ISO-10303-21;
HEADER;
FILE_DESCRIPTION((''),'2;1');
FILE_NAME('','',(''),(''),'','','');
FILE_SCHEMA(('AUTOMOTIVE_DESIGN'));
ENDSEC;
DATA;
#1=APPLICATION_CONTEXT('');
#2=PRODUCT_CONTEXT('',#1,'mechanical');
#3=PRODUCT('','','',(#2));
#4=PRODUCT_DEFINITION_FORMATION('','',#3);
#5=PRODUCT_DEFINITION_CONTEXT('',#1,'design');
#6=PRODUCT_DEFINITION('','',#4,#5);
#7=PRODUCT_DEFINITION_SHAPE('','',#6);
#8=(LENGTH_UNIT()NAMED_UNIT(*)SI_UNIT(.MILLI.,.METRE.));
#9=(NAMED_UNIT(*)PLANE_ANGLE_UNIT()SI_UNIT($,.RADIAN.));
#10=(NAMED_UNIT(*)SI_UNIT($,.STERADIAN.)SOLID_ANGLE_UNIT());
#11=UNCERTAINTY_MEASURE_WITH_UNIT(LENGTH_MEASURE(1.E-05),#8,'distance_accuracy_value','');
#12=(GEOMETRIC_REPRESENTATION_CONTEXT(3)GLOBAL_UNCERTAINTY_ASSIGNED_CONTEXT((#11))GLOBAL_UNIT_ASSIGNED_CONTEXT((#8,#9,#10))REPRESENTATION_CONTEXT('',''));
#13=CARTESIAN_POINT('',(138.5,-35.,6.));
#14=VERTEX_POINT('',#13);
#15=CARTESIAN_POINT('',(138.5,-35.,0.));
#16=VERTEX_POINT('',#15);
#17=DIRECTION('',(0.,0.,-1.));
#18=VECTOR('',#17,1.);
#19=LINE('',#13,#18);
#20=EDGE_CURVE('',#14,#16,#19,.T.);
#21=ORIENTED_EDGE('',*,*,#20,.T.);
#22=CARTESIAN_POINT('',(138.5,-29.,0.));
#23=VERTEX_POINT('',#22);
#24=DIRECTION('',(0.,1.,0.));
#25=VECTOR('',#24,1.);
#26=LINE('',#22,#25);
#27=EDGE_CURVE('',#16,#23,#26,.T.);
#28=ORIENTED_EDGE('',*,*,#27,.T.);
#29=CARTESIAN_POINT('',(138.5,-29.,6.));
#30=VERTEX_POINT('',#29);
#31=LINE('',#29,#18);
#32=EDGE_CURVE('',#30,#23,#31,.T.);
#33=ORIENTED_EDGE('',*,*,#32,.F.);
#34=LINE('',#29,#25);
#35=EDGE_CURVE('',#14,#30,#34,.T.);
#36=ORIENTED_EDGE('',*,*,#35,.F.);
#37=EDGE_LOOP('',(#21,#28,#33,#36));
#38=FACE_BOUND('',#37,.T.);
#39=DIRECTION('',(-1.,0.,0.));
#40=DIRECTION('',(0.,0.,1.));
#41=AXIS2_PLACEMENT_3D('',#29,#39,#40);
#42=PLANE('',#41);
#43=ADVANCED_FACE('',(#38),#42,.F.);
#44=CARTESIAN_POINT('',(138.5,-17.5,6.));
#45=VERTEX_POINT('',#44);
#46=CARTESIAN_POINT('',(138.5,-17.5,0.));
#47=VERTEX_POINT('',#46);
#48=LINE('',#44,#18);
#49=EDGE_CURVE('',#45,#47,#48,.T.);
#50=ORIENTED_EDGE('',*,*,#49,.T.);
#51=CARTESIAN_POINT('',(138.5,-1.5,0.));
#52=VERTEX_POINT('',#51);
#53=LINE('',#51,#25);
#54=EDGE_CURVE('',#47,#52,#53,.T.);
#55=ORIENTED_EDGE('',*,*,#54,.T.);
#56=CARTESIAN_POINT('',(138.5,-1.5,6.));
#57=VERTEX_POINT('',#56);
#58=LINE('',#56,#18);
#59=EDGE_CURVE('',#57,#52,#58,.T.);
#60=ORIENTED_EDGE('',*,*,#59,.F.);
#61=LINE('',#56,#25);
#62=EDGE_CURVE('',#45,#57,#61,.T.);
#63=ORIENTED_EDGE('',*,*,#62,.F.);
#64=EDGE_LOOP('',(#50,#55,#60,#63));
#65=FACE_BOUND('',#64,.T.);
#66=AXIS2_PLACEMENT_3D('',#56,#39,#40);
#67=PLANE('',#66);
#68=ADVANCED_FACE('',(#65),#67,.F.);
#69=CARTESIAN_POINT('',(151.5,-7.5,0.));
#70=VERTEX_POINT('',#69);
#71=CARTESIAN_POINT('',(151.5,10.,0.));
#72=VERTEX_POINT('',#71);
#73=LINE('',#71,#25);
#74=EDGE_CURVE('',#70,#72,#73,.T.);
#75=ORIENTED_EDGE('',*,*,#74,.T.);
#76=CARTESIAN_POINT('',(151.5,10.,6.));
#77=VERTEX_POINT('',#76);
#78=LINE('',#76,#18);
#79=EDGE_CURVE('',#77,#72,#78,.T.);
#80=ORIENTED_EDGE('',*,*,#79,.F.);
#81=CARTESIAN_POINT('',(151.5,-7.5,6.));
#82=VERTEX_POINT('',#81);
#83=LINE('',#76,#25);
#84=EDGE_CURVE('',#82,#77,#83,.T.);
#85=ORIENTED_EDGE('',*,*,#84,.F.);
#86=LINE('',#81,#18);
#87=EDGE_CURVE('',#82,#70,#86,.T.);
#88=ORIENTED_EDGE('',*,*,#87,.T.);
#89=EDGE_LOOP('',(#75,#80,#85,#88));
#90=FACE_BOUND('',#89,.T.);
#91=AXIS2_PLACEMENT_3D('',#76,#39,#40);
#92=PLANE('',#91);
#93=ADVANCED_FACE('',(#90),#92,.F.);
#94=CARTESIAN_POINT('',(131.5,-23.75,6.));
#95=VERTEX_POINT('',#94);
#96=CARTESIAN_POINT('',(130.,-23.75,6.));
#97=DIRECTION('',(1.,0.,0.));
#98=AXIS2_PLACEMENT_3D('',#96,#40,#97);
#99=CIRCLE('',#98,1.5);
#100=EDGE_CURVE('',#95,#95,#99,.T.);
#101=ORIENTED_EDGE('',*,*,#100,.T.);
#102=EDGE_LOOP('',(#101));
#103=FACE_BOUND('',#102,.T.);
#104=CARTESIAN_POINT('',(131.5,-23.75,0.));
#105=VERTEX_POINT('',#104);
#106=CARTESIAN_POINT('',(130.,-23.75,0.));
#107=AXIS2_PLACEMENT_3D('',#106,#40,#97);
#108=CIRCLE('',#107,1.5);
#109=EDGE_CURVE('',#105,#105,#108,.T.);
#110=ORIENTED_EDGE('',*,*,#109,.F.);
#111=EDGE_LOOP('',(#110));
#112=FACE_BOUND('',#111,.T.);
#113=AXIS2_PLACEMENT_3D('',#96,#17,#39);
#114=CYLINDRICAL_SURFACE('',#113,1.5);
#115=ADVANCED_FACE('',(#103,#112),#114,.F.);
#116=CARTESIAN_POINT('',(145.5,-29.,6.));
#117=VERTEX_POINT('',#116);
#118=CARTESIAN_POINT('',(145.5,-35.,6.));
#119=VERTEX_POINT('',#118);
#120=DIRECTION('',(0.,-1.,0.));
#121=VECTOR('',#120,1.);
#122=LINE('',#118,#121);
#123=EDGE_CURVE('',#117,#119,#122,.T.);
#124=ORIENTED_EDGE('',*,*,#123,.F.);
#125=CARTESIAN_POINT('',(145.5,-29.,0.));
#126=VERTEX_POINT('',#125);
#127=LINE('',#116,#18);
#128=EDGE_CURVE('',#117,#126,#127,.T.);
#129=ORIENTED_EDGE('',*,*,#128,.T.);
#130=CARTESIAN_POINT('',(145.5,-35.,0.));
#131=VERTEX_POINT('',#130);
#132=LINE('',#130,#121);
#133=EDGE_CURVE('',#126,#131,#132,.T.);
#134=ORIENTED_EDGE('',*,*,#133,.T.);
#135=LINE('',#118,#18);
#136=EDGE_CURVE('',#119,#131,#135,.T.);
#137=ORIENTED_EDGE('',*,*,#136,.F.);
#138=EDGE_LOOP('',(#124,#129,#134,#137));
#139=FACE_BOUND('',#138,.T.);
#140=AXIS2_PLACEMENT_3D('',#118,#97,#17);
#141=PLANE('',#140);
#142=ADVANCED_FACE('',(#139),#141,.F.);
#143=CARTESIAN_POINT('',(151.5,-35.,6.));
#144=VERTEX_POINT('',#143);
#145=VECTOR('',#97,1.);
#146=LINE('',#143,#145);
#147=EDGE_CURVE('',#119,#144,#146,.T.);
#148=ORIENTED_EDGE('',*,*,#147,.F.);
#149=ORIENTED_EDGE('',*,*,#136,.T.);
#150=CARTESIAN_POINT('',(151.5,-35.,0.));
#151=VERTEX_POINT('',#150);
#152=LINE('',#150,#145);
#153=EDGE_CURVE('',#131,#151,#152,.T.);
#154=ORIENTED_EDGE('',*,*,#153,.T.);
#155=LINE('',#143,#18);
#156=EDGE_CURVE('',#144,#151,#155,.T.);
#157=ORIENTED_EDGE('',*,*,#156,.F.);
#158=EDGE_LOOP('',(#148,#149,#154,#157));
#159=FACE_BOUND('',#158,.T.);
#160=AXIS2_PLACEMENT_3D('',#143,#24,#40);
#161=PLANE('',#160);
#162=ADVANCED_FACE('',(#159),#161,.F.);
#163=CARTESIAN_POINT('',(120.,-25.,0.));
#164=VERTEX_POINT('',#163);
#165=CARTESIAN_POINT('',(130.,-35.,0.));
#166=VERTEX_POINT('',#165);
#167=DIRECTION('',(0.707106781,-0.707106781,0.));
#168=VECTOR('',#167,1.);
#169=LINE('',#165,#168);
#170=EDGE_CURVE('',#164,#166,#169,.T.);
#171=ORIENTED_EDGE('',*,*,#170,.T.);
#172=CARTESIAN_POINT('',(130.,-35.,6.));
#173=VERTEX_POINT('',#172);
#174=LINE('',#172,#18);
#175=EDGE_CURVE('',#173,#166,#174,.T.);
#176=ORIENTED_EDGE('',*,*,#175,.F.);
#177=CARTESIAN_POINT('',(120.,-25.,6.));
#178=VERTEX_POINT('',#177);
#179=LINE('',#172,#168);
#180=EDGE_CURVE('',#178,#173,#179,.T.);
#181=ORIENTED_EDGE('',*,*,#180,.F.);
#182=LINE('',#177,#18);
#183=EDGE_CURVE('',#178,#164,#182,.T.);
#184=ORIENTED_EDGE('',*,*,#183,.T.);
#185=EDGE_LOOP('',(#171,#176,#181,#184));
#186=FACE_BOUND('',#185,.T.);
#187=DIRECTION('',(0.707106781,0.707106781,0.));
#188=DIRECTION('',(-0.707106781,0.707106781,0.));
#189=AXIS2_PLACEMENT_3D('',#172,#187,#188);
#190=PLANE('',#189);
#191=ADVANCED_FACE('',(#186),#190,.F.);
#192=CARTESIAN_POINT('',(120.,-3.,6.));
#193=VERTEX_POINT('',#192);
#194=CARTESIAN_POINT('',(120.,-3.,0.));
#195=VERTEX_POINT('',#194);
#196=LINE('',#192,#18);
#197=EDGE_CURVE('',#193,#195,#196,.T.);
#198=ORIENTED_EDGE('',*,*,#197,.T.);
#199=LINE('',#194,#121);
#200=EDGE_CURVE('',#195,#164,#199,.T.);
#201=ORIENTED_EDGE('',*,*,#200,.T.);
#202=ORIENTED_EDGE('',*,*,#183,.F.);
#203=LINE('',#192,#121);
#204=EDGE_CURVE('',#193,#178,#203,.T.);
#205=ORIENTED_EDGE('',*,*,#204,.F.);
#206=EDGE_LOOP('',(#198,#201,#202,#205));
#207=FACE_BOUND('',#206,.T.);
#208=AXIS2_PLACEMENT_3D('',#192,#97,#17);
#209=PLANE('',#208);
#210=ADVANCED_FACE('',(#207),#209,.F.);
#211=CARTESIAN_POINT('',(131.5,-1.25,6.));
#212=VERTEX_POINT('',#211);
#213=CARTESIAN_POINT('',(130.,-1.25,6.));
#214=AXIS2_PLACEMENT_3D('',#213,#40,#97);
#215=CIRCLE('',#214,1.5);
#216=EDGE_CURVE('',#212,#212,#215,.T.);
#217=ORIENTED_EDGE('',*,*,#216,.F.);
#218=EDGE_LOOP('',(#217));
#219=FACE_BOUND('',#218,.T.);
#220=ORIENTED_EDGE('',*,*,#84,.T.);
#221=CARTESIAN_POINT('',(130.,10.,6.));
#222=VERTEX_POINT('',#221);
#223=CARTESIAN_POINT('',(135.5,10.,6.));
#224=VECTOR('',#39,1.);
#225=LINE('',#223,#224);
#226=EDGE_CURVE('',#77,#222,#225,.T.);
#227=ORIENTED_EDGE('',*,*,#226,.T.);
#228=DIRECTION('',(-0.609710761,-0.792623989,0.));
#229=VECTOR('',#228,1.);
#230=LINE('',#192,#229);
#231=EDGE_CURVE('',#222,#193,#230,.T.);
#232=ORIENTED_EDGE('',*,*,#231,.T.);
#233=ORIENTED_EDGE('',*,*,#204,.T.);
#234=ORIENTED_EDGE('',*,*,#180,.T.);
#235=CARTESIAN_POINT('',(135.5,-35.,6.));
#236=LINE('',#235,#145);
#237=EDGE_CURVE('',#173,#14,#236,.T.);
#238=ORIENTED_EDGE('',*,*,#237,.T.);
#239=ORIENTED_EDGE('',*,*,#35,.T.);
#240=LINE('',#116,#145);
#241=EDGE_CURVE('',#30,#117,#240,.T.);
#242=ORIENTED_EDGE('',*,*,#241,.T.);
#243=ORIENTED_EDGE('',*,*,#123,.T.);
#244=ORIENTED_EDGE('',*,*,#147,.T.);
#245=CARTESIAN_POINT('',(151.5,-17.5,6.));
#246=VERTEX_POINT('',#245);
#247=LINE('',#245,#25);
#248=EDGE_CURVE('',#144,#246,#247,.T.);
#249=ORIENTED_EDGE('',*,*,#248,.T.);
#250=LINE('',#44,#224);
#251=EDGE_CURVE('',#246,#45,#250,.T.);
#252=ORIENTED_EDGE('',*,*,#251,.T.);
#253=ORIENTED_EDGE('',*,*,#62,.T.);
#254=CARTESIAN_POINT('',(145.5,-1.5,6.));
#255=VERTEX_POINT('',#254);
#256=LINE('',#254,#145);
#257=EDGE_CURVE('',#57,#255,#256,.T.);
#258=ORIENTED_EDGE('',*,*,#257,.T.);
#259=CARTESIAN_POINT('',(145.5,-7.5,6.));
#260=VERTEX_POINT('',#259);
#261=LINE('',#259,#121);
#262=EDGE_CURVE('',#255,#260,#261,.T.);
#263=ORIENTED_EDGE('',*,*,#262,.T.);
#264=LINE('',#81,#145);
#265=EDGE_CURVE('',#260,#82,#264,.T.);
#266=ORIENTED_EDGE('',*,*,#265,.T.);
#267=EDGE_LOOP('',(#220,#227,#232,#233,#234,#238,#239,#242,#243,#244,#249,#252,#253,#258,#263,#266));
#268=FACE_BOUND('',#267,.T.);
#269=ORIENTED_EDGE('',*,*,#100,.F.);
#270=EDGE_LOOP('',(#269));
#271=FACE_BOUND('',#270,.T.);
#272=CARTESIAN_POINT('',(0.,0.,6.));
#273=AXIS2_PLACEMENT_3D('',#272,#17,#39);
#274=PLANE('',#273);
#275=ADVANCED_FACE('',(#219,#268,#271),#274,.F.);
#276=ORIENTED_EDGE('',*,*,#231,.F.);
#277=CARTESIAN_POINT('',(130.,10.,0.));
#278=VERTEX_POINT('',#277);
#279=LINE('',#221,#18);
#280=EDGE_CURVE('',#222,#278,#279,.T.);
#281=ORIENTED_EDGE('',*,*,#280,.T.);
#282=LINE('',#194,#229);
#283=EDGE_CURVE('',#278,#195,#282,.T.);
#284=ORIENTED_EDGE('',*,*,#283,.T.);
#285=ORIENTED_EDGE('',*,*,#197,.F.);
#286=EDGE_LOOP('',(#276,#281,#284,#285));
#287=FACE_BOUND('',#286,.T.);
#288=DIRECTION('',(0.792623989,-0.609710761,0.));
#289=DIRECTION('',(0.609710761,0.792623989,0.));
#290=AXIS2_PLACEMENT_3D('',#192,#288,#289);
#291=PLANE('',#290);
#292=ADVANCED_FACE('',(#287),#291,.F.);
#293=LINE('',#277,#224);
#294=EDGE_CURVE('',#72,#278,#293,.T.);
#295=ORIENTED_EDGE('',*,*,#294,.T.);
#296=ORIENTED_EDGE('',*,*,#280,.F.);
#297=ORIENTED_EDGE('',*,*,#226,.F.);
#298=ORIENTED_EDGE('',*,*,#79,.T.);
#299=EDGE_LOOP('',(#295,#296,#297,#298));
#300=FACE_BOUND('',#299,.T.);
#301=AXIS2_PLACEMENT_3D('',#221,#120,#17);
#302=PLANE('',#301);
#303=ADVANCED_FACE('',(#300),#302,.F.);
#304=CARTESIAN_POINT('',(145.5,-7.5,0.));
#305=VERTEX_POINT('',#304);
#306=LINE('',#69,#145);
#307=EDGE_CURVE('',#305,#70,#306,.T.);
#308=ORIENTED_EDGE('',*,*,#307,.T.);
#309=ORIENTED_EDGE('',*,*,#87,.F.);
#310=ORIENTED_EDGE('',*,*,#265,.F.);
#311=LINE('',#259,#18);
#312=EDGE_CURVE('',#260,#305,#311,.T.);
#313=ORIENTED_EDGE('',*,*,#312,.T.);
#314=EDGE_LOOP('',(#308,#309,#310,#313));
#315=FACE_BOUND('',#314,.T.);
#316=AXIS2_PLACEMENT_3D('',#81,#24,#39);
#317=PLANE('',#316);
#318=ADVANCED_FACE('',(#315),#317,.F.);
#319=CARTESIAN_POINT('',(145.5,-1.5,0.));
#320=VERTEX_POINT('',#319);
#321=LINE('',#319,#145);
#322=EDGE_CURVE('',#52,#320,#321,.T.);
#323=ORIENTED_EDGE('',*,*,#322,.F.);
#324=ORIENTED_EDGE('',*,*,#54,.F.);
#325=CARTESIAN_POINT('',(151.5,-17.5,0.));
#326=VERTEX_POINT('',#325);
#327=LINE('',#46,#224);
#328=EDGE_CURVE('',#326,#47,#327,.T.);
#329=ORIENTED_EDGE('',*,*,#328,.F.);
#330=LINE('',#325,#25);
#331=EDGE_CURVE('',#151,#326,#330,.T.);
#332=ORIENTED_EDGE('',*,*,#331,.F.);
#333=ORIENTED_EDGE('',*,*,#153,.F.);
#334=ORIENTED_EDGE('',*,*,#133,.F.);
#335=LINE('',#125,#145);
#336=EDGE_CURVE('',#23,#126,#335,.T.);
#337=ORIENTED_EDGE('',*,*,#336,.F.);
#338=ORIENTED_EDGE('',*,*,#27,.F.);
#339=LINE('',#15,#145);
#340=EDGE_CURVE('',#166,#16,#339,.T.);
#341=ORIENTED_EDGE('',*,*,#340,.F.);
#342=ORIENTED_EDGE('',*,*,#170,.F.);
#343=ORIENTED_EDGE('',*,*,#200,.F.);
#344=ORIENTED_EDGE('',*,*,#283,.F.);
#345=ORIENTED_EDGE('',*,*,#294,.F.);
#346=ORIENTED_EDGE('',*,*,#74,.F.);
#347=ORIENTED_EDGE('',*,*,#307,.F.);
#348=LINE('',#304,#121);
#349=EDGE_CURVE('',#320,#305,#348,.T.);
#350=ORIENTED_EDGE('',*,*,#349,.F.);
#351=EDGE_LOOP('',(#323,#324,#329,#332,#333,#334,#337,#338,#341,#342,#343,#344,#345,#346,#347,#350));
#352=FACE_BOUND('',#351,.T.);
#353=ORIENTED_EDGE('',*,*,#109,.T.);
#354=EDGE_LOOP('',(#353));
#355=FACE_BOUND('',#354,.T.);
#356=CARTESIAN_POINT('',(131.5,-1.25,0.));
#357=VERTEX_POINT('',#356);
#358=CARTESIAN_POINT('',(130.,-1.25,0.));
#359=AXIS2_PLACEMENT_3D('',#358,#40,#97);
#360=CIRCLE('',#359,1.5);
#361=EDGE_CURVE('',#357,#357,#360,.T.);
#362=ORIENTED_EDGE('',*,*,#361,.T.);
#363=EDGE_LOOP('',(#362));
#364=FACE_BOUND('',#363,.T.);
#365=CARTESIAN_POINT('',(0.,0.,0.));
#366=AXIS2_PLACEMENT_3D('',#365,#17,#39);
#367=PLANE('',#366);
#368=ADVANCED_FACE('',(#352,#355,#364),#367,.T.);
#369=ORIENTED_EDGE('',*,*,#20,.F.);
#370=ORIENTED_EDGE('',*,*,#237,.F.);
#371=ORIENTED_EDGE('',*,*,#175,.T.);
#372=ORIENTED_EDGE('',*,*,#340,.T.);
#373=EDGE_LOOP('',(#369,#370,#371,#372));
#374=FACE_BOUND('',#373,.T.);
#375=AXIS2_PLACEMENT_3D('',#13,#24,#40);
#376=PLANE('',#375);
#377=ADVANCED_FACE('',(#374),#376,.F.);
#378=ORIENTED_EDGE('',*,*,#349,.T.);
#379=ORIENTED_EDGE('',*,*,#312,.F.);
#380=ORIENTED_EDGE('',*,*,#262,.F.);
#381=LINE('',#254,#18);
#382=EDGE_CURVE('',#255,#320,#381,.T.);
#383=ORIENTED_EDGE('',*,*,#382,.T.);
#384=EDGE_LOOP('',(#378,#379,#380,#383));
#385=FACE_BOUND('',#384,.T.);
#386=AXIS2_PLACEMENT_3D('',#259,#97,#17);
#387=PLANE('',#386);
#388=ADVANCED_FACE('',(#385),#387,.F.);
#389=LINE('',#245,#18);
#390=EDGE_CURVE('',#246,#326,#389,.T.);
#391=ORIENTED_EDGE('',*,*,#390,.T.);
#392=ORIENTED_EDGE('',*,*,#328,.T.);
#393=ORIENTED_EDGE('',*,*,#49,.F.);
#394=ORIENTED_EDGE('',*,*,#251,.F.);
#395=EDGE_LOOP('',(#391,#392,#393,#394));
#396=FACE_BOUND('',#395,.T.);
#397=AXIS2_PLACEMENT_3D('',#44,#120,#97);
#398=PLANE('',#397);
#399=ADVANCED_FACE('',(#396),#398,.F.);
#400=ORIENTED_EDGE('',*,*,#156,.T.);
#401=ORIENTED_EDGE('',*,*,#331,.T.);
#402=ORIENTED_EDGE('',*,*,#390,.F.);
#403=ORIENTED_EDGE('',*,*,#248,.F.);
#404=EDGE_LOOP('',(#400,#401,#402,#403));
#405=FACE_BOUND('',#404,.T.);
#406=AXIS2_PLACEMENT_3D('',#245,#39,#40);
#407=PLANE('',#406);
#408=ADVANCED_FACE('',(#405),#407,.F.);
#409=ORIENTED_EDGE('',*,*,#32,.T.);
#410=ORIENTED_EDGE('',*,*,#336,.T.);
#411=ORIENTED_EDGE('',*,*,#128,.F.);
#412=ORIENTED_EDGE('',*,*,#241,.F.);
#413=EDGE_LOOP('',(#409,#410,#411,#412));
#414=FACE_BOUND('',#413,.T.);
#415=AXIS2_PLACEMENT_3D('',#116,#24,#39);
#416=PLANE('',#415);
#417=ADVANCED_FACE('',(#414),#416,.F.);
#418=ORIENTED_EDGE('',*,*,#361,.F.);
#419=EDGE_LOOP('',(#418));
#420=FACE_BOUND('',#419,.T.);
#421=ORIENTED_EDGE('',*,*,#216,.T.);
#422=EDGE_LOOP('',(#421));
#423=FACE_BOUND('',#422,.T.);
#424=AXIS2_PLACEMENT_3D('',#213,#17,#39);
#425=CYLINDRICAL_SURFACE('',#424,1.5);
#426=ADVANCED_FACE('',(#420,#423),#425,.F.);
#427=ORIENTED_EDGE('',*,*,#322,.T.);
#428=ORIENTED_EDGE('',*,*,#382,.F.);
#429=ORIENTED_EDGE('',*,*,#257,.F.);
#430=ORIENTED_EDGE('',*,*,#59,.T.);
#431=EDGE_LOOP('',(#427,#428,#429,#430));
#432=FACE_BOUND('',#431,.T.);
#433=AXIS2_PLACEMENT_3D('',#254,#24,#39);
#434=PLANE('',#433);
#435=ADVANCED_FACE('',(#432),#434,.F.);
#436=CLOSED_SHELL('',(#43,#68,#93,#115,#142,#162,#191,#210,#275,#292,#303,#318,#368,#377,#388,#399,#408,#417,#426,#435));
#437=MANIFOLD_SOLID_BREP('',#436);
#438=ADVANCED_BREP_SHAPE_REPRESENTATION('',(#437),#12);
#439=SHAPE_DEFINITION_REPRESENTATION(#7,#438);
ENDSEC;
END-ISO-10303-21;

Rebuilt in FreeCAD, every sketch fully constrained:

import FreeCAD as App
import Part
import Sketcher

V = App.Vector
Q = App.Units.Quantity


def add_polygon(sketch, points):
    """Adds a closed chain of lines whose ends are joined by coincident constraints."""
    first, n = sketch.GeometryCount, len(points)
    for a, b in zip(points, points[1:] + points[:1]):
        sketch.addGeometry(Part.LineSegment(App.Vector(*a, 0), App.Vector(*b, 0)), False)
    for i in range(n):
        sketch.addConstraint(Sketcher.Constraint("Coincident", first + i, 2, first + (i + 1) % n, 1))

doc = App.newDocument("Part")
body = doc.addObject("PartDesign::Body", "Body")

sketch1 = doc.addObject("Sketcher::SketchObject", "Sketch")
body.addObject(sketch1)
sketch1.AttachmentSupport = (doc.XY_Plane, [""])
sketch1.MapMode = "FlatFace"
add_polygon(sketch1, [(130, 10), (120, -3), (120, -25), (130, -35), (138.5, -35), (138.5, -29), (145.5, -29), (145.5, -35), (151.5, -35), (151.5, -17.5), (138.5, -17.5), (138.5, -1.5), (145.5, -1.5), (145.5, -7.5), (151.5, -7.5), (151.5, 10)])
sketch1.addGeometry(Part.Circle(V(130, -23.75, 0), V(0, 0, 1), 1.5), False)
sketch1.addGeometry(Part.Circle(V(130, -1.25, 0), V(0, 0, 1), 1.5), False)
sketch1.addConstraint(Sketcher.Constraint("Vertical", 1))
sketch1.addConstraint(Sketcher.Constraint("Horizontal", 3))
sketch1.addConstraint(Sketcher.Constraint("Vertical", 4))
sketch1.addConstraint(Sketcher.Constraint("Horizontal", 5))
sketch1.addConstraint(Sketcher.Constraint("Vertical", 6))
sketch1.addConstraint(Sketcher.Constraint("Horizontal", 7))
sketch1.addConstraint(Sketcher.Constraint("Vertical", 8))
sketch1.addConstraint(Sketcher.Constraint("Horizontal", 9))
sketch1.addConstraint(Sketcher.Constraint("Vertical", 10))
sketch1.addConstraint(Sketcher.Constraint("Horizontal", 11))
sketch1.addConstraint(Sketcher.Constraint("Vertical", 12))
sketch1.addConstraint(Sketcher.Constraint("Horizontal", 13))
sketch1.addConstraint(Sketcher.Constraint("Vertical", 14))
sketch1.addConstraint(Sketcher.Constraint("Horizontal", 15))
sketch1.addConstraint(Sketcher.Constraint("Equal", 16, 17))
sketch1.addConstraint(Sketcher.Constraint("Horizontal", 3, 2, 6, 2))
sketch1.addConstraint(Sketcher.Constraint("Vertical", 16, 3, 17, 3))
sketch1.addConstraint(Sketcher.Constraint("Vertical", 17, 3, 2, 2))
sketch1.addConstraint(Sketcher.Constraint("Vertical", 4, 2, 9, 2))
sketch1.addConstraint(Sketcher.Constraint("Vertical", 6, 2, 11, 2))
sketch1.addConstraint(Sketcher.Constraint("Vertical", 8, 2, 13, 2))
sketch1.addConstraint(Sketcher.Constraint("Vertical", 2, 2, 15, 2))
sketch1.addConstraint(Sketcher.Constraint("Equal", 13, 4))
sketch1.addConstraint(Sketcher.Constraint("Equal", 6, 12))
sketch1.addConstraint(Sketcher.Constraint("Equal", 8, 14))
sketch1.addConstraint(Sketcher.Constraint("Diameter", 16, 3.0))
sketch1.addConstraint(Sketcher.Constraint("DistanceX", 5, 1, 5, 2, 7.0))
sketch1.addConstraint(Sketcher.Constraint("DistanceX", 7, 1, 7, 2, 6.0))
sketch1.addConstraint(Sketcher.Constraint("DistanceY", 1, 2, 1, 1, 22.0))
sketch1.addConstraint(Sketcher.Constraint("DistanceY", 10, 1, 10, 2, 16.0))
sketch1.addConstraint(Sketcher.Constraint("Angle", 2, Q("-45 deg")))
sketch1.addConstraint(Sketcher.Constraint("DistanceX", 3, 1, 3, 2, 8.5))
sketch1.addConstraint(Sketcher.Constraint("DistanceY", 8, 1, 8, 2, 17.5))
sketch1.addConstraint(Sketcher.Constraint("DistanceX", -1, 1, 16, 3, 130.0))
sketch1.addConstraint(Sketcher.Constraint("DistanceX", -1, 1, 0, 2, 120.0))
sketch1.addConstraint(Sketcher.Constraint("DistanceY", 0, 2, -1, 1, 3.0))
sketch1.addConstraint(Sketcher.Constraint("DistanceY", 16, 3, 17, 3, 22.5))
sketch1.addConstraint(Sketcher.Constraint("DistanceY", 16, 3, -1, 1, 23.75))
pad1 = doc.addObject("PartDesign::Pad", "Pad")
body.addObject(pad1)
pad1.Profile = sketch1
pad1.Length = 6

doc.recompute()
